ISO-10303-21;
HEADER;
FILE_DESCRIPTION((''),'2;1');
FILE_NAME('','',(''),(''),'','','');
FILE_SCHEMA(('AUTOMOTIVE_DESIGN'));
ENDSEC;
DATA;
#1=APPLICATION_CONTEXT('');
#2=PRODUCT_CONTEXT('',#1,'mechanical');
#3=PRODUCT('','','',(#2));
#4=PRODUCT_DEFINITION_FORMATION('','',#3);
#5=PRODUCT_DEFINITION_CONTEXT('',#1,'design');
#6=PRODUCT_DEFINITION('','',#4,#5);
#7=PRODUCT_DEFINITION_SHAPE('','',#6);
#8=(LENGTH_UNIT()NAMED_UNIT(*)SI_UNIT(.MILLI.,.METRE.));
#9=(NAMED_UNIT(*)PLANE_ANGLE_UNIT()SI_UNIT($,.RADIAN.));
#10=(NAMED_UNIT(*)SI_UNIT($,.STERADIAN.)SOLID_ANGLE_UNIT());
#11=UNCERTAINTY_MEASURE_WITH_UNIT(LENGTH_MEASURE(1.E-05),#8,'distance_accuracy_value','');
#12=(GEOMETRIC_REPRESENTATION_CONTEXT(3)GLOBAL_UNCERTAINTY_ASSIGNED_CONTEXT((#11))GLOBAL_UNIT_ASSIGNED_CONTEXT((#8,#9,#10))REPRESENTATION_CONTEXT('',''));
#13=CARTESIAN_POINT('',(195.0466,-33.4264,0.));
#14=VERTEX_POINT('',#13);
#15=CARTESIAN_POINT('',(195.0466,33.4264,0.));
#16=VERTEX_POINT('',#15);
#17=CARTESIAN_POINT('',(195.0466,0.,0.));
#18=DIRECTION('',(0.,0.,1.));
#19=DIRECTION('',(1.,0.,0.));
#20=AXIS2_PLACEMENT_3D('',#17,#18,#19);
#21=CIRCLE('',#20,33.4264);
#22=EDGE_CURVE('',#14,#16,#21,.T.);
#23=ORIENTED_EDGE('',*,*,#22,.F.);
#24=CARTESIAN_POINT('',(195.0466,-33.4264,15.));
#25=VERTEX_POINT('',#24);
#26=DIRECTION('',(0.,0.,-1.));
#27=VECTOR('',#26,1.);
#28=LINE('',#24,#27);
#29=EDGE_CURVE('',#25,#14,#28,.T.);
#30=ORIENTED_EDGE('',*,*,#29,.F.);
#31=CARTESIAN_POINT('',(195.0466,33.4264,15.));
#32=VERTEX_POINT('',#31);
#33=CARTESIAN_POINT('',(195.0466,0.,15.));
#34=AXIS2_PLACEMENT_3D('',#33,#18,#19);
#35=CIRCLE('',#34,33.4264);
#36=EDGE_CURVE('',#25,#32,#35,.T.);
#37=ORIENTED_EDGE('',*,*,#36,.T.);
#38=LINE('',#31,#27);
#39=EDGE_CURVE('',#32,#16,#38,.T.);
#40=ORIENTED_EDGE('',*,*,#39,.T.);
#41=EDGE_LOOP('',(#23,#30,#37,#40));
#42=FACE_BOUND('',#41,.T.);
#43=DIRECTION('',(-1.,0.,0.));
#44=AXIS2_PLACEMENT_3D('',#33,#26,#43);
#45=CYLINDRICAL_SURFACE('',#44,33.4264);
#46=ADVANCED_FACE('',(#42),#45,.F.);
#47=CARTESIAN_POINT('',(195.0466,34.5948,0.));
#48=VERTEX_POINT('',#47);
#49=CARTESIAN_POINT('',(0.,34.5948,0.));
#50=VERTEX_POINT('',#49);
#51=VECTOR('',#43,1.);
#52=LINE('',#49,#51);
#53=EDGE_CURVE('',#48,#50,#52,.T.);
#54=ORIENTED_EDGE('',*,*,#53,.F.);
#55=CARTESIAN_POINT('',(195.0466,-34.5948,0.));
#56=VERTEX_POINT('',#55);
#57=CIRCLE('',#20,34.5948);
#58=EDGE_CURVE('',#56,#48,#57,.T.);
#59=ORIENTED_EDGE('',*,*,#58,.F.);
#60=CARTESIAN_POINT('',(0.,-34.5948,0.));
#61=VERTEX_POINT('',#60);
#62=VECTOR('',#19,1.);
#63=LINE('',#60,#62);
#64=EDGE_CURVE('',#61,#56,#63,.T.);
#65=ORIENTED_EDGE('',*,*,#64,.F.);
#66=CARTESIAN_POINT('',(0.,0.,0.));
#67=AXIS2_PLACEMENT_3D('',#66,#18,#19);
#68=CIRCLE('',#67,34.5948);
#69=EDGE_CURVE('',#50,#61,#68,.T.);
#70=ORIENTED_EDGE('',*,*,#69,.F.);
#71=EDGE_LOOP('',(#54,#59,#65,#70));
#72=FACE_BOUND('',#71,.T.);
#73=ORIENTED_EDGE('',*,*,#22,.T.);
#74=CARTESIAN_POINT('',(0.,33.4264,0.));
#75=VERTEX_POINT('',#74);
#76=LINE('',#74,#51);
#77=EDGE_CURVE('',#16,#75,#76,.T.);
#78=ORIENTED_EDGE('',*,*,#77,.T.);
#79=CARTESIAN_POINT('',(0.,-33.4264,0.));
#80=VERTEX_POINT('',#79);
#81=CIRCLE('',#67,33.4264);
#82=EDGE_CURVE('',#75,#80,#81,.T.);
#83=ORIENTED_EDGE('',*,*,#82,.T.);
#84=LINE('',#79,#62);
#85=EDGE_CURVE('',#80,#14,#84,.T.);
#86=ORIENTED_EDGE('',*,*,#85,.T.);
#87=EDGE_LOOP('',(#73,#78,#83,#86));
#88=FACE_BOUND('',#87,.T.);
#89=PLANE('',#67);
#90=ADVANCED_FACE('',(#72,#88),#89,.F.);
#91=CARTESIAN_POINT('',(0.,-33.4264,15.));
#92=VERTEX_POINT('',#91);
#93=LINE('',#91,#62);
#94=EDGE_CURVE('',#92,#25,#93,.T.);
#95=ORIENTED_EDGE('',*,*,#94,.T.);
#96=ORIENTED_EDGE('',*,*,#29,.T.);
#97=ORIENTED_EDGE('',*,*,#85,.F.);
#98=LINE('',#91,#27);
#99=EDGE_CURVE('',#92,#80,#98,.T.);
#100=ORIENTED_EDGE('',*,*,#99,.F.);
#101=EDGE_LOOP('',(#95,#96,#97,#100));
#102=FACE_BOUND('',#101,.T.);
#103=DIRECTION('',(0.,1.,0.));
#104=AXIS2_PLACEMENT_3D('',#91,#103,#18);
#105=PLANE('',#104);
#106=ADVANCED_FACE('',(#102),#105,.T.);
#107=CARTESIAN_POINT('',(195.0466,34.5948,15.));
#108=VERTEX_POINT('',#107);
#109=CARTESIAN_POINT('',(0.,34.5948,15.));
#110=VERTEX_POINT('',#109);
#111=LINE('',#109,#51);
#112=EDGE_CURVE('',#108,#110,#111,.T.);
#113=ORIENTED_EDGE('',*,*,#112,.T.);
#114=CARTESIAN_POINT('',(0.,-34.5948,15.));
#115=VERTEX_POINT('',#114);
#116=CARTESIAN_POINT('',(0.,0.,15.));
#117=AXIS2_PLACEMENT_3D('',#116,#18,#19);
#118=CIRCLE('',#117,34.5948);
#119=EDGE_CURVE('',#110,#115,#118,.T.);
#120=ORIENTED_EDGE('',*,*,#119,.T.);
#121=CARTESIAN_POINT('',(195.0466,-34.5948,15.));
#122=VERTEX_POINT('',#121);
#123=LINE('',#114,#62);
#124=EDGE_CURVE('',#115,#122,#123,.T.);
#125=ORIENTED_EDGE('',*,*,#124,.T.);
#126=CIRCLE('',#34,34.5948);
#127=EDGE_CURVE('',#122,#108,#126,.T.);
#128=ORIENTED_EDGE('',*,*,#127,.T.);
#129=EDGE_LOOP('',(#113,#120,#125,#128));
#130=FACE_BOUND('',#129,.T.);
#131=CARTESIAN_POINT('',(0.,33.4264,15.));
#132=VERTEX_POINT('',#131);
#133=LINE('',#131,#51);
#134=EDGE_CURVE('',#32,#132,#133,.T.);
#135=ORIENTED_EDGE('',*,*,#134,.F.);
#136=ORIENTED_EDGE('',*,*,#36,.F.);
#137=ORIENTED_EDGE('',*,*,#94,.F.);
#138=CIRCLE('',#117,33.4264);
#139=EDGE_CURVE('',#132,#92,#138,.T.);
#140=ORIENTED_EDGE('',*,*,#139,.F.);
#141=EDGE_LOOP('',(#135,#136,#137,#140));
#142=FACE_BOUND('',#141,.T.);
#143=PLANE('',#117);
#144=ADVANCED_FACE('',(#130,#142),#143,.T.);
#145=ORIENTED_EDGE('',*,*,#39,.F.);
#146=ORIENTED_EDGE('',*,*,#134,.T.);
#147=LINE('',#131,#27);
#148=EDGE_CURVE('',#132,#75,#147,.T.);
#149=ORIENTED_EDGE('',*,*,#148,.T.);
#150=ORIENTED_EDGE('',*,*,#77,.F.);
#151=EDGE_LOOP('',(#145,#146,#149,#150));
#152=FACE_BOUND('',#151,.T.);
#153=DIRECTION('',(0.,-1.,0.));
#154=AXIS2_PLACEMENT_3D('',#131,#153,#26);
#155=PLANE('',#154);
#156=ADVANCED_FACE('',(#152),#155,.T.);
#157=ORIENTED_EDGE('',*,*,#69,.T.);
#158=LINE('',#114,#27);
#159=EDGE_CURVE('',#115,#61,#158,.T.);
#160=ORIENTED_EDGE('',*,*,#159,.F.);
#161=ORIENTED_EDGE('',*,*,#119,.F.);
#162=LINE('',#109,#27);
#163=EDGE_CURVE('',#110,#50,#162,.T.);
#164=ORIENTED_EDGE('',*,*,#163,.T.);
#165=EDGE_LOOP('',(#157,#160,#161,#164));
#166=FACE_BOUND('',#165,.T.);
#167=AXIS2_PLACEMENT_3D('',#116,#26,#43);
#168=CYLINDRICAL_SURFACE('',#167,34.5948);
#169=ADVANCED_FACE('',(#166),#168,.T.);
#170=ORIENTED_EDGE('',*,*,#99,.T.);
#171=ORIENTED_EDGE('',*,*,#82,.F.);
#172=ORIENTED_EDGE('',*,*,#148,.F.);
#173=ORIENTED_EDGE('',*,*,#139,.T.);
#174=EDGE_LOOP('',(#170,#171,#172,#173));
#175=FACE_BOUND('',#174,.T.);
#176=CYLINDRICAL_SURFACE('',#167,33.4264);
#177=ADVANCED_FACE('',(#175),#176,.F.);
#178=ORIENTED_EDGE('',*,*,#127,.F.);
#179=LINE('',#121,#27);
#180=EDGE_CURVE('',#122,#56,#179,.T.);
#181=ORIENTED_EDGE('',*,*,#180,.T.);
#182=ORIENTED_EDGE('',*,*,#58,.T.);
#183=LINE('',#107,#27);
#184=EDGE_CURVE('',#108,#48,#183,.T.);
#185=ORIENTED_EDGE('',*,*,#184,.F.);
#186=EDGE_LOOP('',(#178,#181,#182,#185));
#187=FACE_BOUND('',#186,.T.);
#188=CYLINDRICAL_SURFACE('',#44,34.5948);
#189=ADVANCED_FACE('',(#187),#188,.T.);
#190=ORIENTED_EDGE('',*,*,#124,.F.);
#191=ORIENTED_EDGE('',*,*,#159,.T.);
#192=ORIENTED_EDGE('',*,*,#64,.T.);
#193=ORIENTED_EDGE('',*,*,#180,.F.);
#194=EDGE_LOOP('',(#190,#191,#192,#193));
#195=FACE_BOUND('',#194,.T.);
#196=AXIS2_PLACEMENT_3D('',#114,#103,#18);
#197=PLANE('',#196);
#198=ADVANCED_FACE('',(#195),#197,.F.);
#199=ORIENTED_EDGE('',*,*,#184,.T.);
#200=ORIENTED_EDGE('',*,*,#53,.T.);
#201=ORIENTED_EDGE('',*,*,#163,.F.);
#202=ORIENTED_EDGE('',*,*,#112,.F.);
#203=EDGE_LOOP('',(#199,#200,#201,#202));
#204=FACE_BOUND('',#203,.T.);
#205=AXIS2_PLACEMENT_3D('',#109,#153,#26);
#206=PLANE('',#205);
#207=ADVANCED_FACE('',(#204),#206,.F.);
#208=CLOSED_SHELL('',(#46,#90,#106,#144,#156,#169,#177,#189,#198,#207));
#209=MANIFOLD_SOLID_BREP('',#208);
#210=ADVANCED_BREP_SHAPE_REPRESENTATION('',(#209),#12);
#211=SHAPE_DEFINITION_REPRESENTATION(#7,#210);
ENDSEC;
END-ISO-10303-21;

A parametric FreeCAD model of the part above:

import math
import FreeCAD as App
import Part
import Sketcher
from FreeCAD import Vector
Q = App.Units.Quantity

doc = App.newDocument("Part")
body = doc.addObject("PartDesign::Body", "Body")

sketch1 = doc.addObject("Sketcher::SketchObject", "Sketch")
body.addObject(sketch1)
sketch1.AttachmentSupport = (doc.XY_Plane, [""])
sketch1.MapMode = "FlatFace"
sketch1.addGeometry(Part.LineSegment(Vector(195, 35, 0), Vector(0, 35, 0)), False)
sketch1.addGeometry(Part.ArcOfCircle(Part.Circle(Vector(0, 0, 0), Vector(0, 0, 1), 35), math.radians(90), math.radians(270)), False)
sketch1.addGeometry(Part.LineSegment(Vector(0, -35, 0), Vector(195, -35, 0)), False)
sketch1.addGeometry(Part.ArcOfCircle(Part.Circle(Vector(195, 0, 0), Vector(0, 0, 1), 35), math.radians(-90), math.radians(90)), False)
sketch1.addGeometry(Part.LineSegment(Vector(0, 33, 0), Vector(195, 33, 0)), False)
sketch1.addGeometry(Part.ArcOfCircle(Part.Circle(Vector(195, 0, 0), Vector(0, 0, 1), 33), math.radians(-90), math.radians(90)), False)
sketch1.addGeometry(Part.LineSegment(Vector(195, -33, 0), Vector(0, -33, 0)), False)
sketch1.addGeometry(Part.ArcOfCircle(Part.Circle(Vector(0, 0, 0), Vector(0, 0, 1), 33), math.radians(90), math.radians(270)), False)
sketch1.addConstraint(Sketcher.Constraint("Tangent", 0, 2, 1, 1))
sketch1.addConstraint(Sketcher.Constraint("Tangent", 1, 2, 2, 1))
sketch1.addConstraint(Sketcher.Constraint("Tangent", 2, 2, 3, 1))
sketch1.addConstraint(Sketcher.Constraint("Tangent", 3, 2, 0, 1))
sketch1.addConstraint(Sketcher.Constraint("Tangent", 4, 2, 5, 2))
sketch1.addConstraint(Sketcher.Constraint("Tangent", 5, 1, 6, 1))
sketch1.addConstraint(Sketcher.Constraint("Tangent", 6, 2, 7, 2))
sketch1.addConstraint(Sketcher.Constraint("Tangent", 7, 1, 4, 1))
sketch1.addConstraint(Sketcher.Constraint("Horizontal", 0))
sketch1.addConstraint(Sketcher.Constraint("Horizontal", 2))
sketch1.addConstraint(Sketcher.Constraint("Horizontal", 4))
sketch1.addConstraint(Sketcher.Constraint("Horizontal", 6))
sketch1.addConstraint(Sketcher.Constraint("Coincident", 1, 3, -1, 1))
sketch1.addConstraint(Sketcher.Constraint("Coincident", 7, 3, -1, 1))
sketch1.addConstraint(Sketcher.Constraint("Vertical", 5, 3, 2, 2))
sketch1.addConstraint(Sketcher.Constraint("Radius", 1, Q("1.362 in")))
sketch1.addConstraint(Sketcher.Constraint("Radius", 5, Q("1.316 in")))
sketch1.addConstraint(Sketcher.Constraint("DistanceX", 0, 2, 0, 1, Q("7.679 in")))
pad1 = doc.addObject("PartDesign::Pad", "Pad")
body.addObject(pad1)
pad1.Profile = sketch1
pad1.Length = 15

doc.recompute()
